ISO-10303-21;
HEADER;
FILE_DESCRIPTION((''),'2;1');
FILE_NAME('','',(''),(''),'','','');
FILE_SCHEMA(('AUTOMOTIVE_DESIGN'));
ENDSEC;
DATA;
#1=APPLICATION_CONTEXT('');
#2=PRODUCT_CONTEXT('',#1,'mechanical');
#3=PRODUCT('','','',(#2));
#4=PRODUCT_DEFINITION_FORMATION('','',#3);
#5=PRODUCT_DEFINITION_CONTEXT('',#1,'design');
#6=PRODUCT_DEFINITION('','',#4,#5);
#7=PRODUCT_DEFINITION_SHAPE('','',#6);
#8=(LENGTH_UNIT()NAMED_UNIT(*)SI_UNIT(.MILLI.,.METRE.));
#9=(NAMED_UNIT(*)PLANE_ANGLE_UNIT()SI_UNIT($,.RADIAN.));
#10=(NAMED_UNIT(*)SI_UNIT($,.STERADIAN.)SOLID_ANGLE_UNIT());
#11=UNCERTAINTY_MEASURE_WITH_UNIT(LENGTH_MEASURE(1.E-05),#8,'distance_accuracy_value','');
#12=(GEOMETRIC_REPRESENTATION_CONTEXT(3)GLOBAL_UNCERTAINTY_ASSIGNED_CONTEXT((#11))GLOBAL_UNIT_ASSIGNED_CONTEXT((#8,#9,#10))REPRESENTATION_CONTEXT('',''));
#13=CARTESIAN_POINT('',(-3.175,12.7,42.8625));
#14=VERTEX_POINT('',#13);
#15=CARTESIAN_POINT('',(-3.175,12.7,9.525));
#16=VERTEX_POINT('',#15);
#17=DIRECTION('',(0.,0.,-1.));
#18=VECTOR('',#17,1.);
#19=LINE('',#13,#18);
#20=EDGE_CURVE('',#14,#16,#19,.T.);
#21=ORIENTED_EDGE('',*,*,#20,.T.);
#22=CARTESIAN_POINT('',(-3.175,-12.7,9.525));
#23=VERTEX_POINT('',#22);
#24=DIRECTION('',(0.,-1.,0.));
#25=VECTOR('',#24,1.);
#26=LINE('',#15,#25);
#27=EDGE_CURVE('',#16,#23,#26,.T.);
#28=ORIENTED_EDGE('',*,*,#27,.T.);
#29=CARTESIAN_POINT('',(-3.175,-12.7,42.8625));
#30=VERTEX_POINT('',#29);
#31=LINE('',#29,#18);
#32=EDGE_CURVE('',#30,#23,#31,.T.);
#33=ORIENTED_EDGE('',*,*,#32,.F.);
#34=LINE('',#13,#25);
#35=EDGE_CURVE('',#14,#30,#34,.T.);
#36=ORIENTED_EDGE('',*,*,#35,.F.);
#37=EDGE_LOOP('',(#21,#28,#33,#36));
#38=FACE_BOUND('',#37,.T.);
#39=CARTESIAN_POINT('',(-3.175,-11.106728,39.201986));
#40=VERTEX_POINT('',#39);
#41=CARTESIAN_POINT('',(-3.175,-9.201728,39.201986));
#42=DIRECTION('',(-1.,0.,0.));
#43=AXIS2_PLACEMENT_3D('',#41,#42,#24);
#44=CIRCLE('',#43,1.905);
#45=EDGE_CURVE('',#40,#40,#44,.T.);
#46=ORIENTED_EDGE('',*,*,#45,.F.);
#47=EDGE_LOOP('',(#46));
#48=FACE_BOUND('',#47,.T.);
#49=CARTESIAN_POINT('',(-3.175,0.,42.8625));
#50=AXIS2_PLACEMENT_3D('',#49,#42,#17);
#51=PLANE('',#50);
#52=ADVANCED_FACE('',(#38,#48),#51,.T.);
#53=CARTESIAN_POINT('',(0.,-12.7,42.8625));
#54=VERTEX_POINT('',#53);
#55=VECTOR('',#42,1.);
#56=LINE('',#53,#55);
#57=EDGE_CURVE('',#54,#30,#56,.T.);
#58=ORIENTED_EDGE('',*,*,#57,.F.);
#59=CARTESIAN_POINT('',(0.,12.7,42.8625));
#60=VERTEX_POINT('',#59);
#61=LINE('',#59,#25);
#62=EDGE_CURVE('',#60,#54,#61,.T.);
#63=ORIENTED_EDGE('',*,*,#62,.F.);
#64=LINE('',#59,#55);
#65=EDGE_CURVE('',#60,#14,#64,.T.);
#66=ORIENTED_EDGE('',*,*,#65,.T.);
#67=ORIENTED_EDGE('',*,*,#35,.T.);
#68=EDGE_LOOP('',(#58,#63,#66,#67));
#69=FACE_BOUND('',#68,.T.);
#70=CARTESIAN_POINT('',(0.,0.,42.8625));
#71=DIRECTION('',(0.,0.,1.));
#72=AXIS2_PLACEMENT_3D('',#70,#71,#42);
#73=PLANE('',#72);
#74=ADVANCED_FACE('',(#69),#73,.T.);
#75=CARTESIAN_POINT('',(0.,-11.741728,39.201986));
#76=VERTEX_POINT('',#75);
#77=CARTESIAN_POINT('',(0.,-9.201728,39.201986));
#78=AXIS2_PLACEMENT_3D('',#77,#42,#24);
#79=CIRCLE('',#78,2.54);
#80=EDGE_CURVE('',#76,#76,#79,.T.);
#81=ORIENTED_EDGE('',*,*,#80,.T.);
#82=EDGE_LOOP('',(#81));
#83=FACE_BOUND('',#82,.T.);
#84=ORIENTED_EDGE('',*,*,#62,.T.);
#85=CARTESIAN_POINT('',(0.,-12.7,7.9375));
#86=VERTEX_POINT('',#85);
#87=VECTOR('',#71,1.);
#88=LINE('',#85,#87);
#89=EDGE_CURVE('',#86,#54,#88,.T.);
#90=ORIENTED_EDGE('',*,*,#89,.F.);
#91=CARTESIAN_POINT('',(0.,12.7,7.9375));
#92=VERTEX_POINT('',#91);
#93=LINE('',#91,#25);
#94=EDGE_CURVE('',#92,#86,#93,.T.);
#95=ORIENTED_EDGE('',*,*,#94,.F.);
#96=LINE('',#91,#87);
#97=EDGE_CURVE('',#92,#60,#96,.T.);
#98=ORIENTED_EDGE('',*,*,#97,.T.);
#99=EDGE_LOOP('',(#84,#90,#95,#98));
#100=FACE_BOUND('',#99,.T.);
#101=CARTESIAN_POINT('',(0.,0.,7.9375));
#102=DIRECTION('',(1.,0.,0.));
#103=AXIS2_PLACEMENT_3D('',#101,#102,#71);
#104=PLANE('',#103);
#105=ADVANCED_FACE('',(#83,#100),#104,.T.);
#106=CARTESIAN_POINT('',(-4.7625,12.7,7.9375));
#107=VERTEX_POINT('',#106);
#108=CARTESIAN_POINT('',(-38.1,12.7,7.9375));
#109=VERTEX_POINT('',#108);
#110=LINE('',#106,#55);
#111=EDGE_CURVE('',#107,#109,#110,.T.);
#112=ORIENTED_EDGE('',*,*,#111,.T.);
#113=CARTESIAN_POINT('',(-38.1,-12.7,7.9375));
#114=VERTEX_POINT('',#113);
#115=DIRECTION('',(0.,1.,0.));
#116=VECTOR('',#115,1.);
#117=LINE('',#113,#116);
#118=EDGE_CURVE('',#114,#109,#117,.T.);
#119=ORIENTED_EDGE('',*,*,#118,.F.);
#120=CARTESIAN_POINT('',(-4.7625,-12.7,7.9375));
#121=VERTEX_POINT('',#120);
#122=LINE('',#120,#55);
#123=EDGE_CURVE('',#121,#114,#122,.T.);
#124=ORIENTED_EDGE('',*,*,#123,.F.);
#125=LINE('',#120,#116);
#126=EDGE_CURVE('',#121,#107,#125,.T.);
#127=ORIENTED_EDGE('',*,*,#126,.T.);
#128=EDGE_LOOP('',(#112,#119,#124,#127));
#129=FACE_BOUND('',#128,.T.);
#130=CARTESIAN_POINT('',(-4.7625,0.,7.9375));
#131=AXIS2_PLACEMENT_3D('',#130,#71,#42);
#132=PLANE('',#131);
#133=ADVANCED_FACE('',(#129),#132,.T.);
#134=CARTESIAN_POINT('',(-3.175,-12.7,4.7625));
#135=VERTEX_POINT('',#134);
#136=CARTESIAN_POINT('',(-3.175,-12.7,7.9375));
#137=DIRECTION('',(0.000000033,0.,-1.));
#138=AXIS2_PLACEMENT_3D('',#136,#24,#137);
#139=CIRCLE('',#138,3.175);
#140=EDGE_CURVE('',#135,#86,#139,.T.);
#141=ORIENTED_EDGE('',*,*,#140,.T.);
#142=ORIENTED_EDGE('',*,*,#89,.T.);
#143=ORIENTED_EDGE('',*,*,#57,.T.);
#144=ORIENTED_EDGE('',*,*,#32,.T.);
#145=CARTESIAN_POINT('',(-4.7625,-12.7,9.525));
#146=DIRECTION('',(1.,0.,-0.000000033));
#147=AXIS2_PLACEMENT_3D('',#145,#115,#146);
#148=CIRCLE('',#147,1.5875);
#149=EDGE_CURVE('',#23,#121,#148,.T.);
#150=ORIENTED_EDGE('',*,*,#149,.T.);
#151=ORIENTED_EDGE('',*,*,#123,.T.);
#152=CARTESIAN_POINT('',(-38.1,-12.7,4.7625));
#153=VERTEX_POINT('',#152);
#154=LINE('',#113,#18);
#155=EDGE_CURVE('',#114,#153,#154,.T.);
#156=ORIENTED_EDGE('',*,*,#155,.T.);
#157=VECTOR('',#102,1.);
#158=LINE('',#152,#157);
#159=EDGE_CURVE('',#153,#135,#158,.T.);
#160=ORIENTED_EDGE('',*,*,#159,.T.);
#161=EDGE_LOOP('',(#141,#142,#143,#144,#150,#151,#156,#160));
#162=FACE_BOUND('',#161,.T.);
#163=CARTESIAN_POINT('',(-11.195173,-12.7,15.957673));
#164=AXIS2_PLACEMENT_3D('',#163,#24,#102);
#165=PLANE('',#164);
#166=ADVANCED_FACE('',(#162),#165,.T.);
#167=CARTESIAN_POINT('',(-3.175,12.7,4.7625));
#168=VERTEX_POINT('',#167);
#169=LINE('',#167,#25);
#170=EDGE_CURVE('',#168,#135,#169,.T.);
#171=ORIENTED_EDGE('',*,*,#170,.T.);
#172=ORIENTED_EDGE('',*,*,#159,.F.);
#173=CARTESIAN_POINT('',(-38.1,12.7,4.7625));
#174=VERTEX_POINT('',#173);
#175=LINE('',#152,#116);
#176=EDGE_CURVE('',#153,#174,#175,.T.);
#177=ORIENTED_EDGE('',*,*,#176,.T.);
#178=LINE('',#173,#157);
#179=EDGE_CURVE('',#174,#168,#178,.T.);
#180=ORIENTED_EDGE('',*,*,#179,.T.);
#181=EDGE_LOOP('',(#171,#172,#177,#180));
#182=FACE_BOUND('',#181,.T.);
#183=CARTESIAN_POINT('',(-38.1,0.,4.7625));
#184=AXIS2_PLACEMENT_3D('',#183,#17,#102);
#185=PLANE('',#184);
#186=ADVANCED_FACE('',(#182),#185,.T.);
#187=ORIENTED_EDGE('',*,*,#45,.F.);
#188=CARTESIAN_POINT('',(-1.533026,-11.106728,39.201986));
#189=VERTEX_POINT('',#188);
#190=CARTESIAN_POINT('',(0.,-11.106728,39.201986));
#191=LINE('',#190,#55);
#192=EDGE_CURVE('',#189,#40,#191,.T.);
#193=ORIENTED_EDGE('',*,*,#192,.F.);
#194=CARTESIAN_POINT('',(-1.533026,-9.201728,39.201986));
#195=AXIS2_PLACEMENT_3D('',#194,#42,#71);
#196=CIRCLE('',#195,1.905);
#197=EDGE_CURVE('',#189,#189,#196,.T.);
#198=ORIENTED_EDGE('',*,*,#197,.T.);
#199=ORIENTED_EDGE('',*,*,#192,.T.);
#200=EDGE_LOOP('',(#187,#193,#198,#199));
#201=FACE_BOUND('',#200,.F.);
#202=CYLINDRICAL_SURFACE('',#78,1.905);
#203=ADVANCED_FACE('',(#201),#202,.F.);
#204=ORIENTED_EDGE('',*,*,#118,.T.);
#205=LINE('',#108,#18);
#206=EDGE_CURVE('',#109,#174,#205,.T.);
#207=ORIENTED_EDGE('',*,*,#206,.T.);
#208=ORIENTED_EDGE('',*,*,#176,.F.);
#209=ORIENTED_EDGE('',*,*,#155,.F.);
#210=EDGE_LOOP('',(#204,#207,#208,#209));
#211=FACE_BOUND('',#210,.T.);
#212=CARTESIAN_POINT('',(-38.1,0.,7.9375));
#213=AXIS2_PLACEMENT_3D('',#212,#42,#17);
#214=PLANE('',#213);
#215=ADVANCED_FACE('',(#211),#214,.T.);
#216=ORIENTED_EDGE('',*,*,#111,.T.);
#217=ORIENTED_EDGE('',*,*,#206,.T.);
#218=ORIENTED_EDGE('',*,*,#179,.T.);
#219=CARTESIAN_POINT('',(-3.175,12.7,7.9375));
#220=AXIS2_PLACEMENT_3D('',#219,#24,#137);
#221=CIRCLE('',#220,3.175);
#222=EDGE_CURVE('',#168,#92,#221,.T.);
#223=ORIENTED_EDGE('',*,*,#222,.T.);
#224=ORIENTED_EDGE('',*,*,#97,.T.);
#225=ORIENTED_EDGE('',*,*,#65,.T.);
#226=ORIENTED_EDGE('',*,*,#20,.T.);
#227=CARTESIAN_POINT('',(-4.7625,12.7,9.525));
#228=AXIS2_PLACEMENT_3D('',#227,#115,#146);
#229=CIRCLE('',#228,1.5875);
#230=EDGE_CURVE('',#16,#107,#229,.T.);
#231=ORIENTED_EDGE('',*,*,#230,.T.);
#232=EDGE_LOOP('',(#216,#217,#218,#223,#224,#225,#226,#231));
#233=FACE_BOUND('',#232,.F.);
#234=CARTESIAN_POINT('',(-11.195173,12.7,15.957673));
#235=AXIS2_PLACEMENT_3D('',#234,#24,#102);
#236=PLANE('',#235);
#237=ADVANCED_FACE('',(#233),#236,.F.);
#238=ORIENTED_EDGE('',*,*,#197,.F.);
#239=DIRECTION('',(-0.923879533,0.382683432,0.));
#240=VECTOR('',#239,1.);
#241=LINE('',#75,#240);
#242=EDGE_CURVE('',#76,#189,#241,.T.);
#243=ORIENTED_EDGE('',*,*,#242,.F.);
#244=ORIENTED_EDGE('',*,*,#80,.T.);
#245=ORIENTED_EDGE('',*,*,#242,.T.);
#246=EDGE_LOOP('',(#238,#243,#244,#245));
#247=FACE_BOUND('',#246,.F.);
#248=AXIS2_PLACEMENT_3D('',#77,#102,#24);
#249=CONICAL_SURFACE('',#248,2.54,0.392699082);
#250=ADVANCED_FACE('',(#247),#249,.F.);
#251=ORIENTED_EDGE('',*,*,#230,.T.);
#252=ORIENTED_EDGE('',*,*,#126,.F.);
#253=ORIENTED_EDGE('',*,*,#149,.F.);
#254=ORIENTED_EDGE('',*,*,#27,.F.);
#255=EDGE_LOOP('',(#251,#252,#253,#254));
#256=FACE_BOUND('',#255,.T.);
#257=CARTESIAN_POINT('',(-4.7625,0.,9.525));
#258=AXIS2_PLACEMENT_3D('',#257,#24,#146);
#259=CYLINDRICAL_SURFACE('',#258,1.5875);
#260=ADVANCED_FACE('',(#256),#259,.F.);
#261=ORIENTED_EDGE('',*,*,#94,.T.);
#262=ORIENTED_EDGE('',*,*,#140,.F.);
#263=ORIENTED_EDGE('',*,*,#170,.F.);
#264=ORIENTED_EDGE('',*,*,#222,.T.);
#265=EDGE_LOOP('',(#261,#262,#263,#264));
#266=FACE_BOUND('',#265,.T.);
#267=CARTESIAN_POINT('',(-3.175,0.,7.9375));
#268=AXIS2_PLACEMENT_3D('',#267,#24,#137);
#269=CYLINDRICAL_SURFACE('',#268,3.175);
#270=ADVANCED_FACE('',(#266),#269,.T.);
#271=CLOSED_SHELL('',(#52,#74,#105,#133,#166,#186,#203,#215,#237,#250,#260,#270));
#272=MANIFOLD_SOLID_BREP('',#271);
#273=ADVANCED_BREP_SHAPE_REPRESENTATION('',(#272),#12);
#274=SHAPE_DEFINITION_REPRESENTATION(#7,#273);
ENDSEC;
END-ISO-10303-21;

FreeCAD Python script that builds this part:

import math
import FreeCAD as App
import Part
import Sketcher
Q = App.Units.Quantity

doc = App.newDocument("Part")
body = doc.addObject("PartDesign::Body", "Body")

# Sketch on XZ plane
sketch1 = doc.addObject("Sketcher::SketchObject", "Sketch")
body.addObject(sketch1)
sketch1.AttachmentSupport = (doc.XZ_Plane, [""])
sketch1.MapMode = "FlatFace"
sketch1.addGeometry([
    Part.LineSegment(App.Vector(-38.1, 4.7625, 0), App.Vector(-3.175, 4.7625, 0)),  # 0
    Part.ArcOfCircle(Part.Circle(App.Vector(-3.175, 7.9375, 0), App.Vector(0, 0, 1), 3.175), math.radians(-89.999998), math.radians(-0.000002)),  # 1
    Part.LineSegment(App.Vector(0, 7.9375, 0), App.Vector(0, 42.8625, 0)),  # 2
    Part.LineSegment(App.Vector(0, 42.8625, 0), App.Vector(-3.175, 42.8625, 0)),  # 3
    Part.LineSegment(App.Vector(-3.175, 42.8625, 0), App.Vector(-3.175, 9.525, 0)),  # 4
    Part.ArcOfCircle(Part.Circle(App.Vector(-4.7625, 9.525, 0), App.Vector(0, 0, 1), 1.5875), math.radians(-89.999998), math.radians(-0.000002)),  # 5
    Part.LineSegment(App.Vector(-4.7625, 7.9375, 0), App.Vector(-38.1, 7.9375, 0)),  # 6
    Part.LineSegment(App.Vector(-38.1, 7.9375, 0), App.Vector(-38.1, 4.7625, 0)),  # 7
], False)
sketch1.addConstraint([
    Sketcher.Constraint("Tangent", 0, 2, 1, 1),
    Sketcher.Constraint("Tangent", 1, 2, 2, 1),
    Sketcher.Constraint("Coincident", 2, 2, 3, 1),
    Sketcher.Constraint("Coincident", 3, 2, 4, 1),
    Sketcher.Constraint("Tangent", 4, 2, 5, 2),
    Sketcher.Constraint("Tangent", 5, 1, 6, 1),
    Sketcher.Constraint("Coincident", 6, 2, 7, 1),
    Sketcher.Constraint("Coincident", 7, 2, 0, 1),
    Sketcher.Constraint("Horizontal", 0),
    Sketcher.Constraint("Vertical", 2),
    Sketcher.Constraint("Horizontal", 3),
    Sketcher.Constraint("Vertical", 4),
    Sketcher.Constraint("Horizontal", 6),
    Sketcher.Constraint("Vertical", 7),
    Sketcher.Constraint("PointOnObject", 1, 2, -2),
    Sketcher.Constraint("Horizontal", 1, 2, 5, 1),
    Sketcher.Constraint("Vertical", 0, 2, 3, 2),
    Sketcher.Constraint("Equal", 0, 2),
    Sketcher.Constraint("Radius", 1, Q("0.125 in")),
    Sketcher.Constraint("Radius", 5, Q("0.0625 in")),
    Sketcher.Constraint("DistanceX", 6, 2, -1, 1, Q("1.5 in")),
    Sketcher.Constraint("DistanceY", -1, 1, 1, 3, Q("0.3125 in")),
])
pad1 = doc.addObject("PartDesign::Pad", "Pad")
body.addObject(pad1)
pad1.Profile = sketch1
pad1.Length = Q("1 in")
pad1.Midplane = True

# Sketch on YZ plane
sketch2 = doc.addObject("Sketcher::SketchObject", "Sketch001")
body.addObject(sketch2)
sketch2.AttachmentSupport = (doc.YZ_Plane, [""])
sketch2.MapMode = "FlatFace"
sketch2.addGeometry(Part.Circle(App.Vector(-9.201728, 39.201986, 0), App.Vector(0, 0, 1), 1.905), False)
sketch2.addConstraint([
    Sketcher.Constraint("Diameter", 0, Q("0.15 in")),
    Sketcher.Constraint("DistanceX", 0, 3, -1, 1, 9.201728),
    Sketcher.Constraint("DistanceY", -1, 1, 0, 3, 39.201986),
])
doc.recompute()
hole = doc.addObject("PartDesign::Hole", "Hole")
body.addObject(hole)
hole.Profile = sketch2
hole.ThreadType = "None"
hole.Diameter = Q("0.15 in")
hole.DepthType = "ThroughAll"
hole.HoleCutType = "Countersink"
hole.HoleCutDiameter = Q("0.2 in")
hole.HoleCutCountersinkAngle = 45

doc.recompute()
